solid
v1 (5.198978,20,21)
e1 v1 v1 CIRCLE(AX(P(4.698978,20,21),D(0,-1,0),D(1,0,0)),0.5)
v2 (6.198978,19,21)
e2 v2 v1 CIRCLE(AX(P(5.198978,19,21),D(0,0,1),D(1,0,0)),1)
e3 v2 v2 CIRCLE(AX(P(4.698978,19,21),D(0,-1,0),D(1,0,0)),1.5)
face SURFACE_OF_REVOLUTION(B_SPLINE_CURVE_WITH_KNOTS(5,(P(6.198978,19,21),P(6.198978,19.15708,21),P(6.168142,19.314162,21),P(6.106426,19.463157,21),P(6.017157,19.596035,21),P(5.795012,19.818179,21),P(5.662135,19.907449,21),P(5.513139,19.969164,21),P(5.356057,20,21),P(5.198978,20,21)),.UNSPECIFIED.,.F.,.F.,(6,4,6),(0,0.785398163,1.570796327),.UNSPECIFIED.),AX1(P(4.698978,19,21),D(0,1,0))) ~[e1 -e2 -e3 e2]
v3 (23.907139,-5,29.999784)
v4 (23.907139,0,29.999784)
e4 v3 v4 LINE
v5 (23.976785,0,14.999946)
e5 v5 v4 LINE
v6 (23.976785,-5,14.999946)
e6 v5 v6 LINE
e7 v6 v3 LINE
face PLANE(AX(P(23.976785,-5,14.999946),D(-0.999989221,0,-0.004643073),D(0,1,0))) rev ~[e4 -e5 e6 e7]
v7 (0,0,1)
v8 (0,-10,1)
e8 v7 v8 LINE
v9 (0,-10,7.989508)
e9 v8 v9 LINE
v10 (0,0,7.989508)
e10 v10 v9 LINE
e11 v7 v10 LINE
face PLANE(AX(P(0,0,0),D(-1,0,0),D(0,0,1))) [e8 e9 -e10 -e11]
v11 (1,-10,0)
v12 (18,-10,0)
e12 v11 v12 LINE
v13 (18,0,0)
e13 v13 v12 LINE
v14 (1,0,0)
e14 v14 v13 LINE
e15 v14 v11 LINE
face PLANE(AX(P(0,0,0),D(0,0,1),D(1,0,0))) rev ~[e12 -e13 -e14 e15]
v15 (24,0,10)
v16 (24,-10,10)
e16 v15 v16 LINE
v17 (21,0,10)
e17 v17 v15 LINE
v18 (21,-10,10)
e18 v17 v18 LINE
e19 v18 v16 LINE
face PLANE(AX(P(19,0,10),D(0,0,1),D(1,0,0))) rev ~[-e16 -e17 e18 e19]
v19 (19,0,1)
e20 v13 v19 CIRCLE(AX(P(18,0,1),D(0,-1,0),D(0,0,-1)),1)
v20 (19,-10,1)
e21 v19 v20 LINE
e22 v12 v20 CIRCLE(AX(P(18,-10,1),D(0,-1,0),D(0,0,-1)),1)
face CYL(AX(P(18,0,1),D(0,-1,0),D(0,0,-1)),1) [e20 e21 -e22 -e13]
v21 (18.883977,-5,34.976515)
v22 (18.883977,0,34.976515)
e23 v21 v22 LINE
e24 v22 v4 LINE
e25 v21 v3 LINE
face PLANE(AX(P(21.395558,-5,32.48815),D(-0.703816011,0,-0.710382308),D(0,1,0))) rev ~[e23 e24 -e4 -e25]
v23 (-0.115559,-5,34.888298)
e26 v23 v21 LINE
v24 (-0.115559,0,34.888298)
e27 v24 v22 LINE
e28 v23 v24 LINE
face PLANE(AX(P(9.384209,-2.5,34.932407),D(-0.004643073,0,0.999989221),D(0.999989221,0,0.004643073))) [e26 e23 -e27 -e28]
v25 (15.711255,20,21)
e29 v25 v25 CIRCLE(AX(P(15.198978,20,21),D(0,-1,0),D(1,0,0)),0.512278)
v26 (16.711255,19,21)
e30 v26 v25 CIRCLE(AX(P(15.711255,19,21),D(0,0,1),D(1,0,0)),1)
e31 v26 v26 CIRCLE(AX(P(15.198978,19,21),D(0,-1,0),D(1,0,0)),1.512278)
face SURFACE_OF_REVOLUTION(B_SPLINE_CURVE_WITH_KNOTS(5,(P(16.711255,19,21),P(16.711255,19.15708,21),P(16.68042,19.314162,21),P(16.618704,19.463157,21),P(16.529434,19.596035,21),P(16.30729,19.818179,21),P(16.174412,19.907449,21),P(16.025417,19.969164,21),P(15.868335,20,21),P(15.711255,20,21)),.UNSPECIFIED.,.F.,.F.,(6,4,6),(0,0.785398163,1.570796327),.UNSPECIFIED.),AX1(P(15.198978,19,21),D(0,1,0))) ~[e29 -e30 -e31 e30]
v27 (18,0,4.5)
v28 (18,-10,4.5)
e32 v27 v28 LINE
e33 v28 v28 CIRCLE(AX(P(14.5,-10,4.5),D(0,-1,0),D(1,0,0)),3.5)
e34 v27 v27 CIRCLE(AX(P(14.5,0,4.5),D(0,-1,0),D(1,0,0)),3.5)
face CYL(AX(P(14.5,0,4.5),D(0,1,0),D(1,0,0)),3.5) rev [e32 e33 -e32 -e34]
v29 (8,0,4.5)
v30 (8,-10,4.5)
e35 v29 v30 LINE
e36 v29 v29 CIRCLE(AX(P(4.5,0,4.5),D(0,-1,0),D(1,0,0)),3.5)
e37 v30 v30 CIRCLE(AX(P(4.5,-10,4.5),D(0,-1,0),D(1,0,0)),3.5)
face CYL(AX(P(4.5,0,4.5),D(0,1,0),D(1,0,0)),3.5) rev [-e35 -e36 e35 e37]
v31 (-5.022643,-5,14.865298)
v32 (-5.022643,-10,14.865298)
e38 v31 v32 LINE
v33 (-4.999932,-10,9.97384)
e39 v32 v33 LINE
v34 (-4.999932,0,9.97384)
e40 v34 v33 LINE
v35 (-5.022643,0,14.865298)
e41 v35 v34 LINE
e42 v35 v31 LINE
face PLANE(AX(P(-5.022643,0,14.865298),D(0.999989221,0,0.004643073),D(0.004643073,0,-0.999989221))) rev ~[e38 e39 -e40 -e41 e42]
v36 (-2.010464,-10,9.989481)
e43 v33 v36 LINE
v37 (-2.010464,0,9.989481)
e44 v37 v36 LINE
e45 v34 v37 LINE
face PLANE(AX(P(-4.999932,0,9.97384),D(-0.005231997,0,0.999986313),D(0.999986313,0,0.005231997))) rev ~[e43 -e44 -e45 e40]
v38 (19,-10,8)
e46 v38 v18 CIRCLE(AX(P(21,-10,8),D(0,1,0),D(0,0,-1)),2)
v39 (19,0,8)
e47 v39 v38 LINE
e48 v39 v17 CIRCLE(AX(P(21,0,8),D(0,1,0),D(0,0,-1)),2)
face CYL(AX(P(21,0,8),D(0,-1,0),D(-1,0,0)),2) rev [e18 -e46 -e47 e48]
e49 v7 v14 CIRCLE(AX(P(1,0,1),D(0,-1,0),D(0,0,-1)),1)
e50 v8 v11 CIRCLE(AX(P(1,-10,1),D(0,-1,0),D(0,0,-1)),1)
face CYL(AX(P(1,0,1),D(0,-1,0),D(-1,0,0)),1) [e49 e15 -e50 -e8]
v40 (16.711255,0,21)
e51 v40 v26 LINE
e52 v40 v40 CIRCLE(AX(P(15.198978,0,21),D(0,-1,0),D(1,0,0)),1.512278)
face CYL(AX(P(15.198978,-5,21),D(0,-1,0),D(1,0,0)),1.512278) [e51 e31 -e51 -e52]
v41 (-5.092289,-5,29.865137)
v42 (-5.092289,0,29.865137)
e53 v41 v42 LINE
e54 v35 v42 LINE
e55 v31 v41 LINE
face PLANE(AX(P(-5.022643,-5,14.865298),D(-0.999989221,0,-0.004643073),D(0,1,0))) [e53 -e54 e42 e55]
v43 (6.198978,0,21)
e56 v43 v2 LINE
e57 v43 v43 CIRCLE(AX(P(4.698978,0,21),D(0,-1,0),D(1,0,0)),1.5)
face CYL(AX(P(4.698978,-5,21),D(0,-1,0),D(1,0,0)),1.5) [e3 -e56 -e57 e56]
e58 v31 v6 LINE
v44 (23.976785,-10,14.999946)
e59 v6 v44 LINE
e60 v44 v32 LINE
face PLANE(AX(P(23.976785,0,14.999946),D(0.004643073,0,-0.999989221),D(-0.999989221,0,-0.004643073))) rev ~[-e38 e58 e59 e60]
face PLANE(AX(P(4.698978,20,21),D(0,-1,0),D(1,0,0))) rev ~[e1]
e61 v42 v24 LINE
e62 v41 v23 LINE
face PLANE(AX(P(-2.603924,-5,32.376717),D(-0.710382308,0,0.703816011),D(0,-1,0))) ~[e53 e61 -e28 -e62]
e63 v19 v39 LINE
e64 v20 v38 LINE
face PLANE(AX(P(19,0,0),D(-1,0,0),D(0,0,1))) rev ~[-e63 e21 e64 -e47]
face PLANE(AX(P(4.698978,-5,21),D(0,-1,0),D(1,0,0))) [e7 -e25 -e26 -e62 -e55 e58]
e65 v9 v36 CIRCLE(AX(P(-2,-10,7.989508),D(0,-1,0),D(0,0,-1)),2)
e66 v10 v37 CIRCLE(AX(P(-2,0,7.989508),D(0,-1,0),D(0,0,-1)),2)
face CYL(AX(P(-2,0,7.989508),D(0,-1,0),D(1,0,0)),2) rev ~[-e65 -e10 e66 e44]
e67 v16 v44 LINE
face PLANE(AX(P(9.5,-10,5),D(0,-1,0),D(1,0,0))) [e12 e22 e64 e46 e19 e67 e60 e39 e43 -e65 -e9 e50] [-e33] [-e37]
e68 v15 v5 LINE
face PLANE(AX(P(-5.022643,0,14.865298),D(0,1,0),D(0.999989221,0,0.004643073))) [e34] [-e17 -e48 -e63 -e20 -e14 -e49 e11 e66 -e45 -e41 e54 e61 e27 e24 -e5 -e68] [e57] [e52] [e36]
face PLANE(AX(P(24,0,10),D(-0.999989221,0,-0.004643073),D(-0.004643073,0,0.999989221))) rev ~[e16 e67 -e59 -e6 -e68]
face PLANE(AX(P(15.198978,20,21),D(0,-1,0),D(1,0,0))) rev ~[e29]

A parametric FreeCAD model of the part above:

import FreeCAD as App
import Part
import Sketcher


def edges_at(feature, points):
    """Names of the edges that pass closest to the given points."""
    edges = feature.Shape.Edges
    near = lambda p: min(range(len(edges)), key=lambda i: edges[i].distToShape(Part.Vertex(*p))[0])
    return sorted({f"Edge{near(p) + 1}" for p in points})


def add_polygon(sketch, points):
    """Adds a closed chain of lines whose ends are joined by coincident constraints."""
    first, n = sketch.GeometryCount, len(points)
    for a, b in zip(points, points[1:] + points[:1]):
        sketch.addGeometry(Part.LineSegment(App.Vector(*a, 0), App.Vector(*b, 0)), False)
    for i in range(n):
        sketch.addConstraint(Sketcher.Constraint("Coincident", first + i, 2, first + (i + 1) % n, 1))

doc = App.newDocument("Part")
body = doc.addObject("PartDesign::Body", "Body")

# Sketch on XZ plane
sketch1 = body.newObject("Sketcher::SketchObject", "Sketch")
sketch1.AttachmentSupport = (doc.getObject("XZ_Plane"), [""])
sketch1.MapMode = "FlatFace"
add_polygon(sketch1, [(0, 10), (0, 0), (19, 0), (19, 10), (24, 10), (23.976785, 14.999946), (-5.022643, 14.865298), (-4.999932, 9.97384)])  # lines 0-7
sketch1.addGeometry(Part.Circle(App.Vector(4.5, 4.5, 0), App.Vector(0, 0, 1), 3.5), False)  # 8
sketch1.addGeometry(Part.Circle(App.Vector(14.5, 4.5, 0), App.Vector(0, 0, 1), 3.5), False)  # 9
sketch1.addConstraint([
    Sketcher.Constraint("Vertical", 0),
    Sketcher.Constraint("Horizontal", 1),
    Sketcher.Constraint("Vertical", 2),
    Sketcher.Constraint("Horizontal", 3),
    Sketcher.Constraint("Coincident", 0, 2, -1, 1),
    Sketcher.Constraint("Equal", 8, 9),
    Sketcher.Constraint("Perpendicular", 4, 5),
    Sketcher.Constraint("Perpendicular", 5, 6),
    Sketcher.Constraint("Horizontal", 8, 3, 9, 3),
    Sketcher.Constraint("Horizontal", 3, 2, 7, 2),
    Sketcher.Constraint("Equal", 4, 7),
    Sketcher.Constraint("Diameter", 8, 7.0),
    Sketcher.Constraint("DistanceX", 1, 1, 1, 2, 19.0),
    Sketcher.Constraint("DistanceX", 3, 1, 3, 2, 5.0),
    Sketcher.Constraint("DistanceY", 0, 2, 0, 1, 10.0),
    Sketcher.Constraint("Distance", 4, 5.0),
    Sketcher.Constraint("DistanceX", 8, 3, 9, 3, 10.0),
    Sketcher.Constraint("DistanceX", -1, 1, 8, 3, 4.5),
    Sketcher.Constraint("DistanceY", -1, 1, 8, 3, 4.5),
    Sketcher.Constraint("DistanceY", -1, 1, 5, 2, 14.865298),
    Sketcher.Constraint("Distance", 6, 4.891511),
])
pad1 = body.newObject("PartDesign::Pad", "Pad")
pad1.Profile = sketch1
pad1.Length = 10

# Sketch on an angled plane
sketch2 = body.newObject("Sketcher::SketchObject", "Sketch001")
sketch2.Placement = App.Placement(App.Vector(-0.069128, 0, 14.888298), App.Rotation(App.Vector(0.999989221, 0, 0.004643073), App.Vector(0, 1, 0), App.Vector(-0.004643073, 0, 0.999989221), "ZXY"))
add_polygon(sketch2, [(-4.953568, 0), (-4.953568, -5), (24.046172, -5), (24.046172, 0)])  # lines 0-3
sketch2.addConstraint([
    Sketcher.Constraint("Vertical", 0),
    Sketcher.Constraint("Horizontal", 1),
    Sketcher.Constraint("Vertical", 2),
    Sketcher.Constraint("Horizontal", 3),
    Sketcher.Constraint("PointOnObject", 2, 2, -1),
    Sketcher.Constraint("DistanceY", 0, 2, 0, 1, 5.0),
    Sketcher.Constraint("DistanceX", 1, 1, 1, 2, 28.99974),
    Sketcher.Constraint("DistanceX", 0, 2, -1, 1, 4.953568),
])
pad2 = body.newObject("PartDesign::Pad", "Pad001")
pad2.Profile = sketch2
pad2.Length = 20

# Sketch on XZ plane
sketch3 = body.newObject("Sketcher::SketchObject", "Sketch002")
sketch3.AttachmentSupport = (doc.getObject("XZ_Plane"), [""])
sketch3.MapMode = "FlatFace"
sketch3.AttachmentOffset = App.Placement(App.Vector(0, 0, 5), App.Rotation())
sketch3.addGeometry([
    Part.Circle(App.Vector(4.698978, 21, 0), App.Vector(0, 0, 1), 1.5),
    Part.Circle(App.Vector(15.198978, 21, 0), App.Vector(0, 0, 1), 1.512278),
], False)
sketch3.addConstraint([
    Sketcher.Constraint("Horizontal", 0, 3, 1, 3),
    Sketcher.Constraint("Diameter", 0, 3.0),
    Sketcher.Constraint("DistanceY", -1, 1, 0, 3, 21.0),
    Sketcher.Constraint("DistanceX", 0, 3, 1, 3, 10.5),
    Sketcher.Constraint("Diameter", 1, 3.024555),
    Sketcher.Constraint("DistanceX", -1, 1, 0, 3, 4.698978),
])
pad3 = body.newObject("PartDesign::Pad", "Pad002")
pad3.Profile = sketch3
pad3.Length = 25
pad3.Reversed = True
doc.recompute()

chamfer = body.newObject("PartDesign::Chamfer", "Chamfer")
chamfer.Base = (pad3, edges_at(pad3, [(-5.116, -2.5, 34.865), (23.884, -2.5, 35)]))
chamfer.Size = 5
doc.recompute()

fillet = body.newObject("PartDesign::Fillet", "Fillet")
fillet.Base = (chamfer, edges_at(chamfer, [(3.199, 20, 21), (13.687, 20, 21)]))
fillet.Radius = 1
doc.recompute()

fillet2 = body.newObject("PartDesign::Fillet", "Fillet001")
fillet2.Base = (fillet, edges_at(fillet, [(19, -5, 0), (0, -5, 0)]))
fillet2.Radius = 1
doc.recompute()

fillet3 = body.newObject("PartDesign::Fillet", "Fillet002")
fillet3.Base = (fillet2, edges_at(fillet2, [(19, -5, 10), (0, -5, 10)]))
fillet3.Radius = 2

doc.recompute()
